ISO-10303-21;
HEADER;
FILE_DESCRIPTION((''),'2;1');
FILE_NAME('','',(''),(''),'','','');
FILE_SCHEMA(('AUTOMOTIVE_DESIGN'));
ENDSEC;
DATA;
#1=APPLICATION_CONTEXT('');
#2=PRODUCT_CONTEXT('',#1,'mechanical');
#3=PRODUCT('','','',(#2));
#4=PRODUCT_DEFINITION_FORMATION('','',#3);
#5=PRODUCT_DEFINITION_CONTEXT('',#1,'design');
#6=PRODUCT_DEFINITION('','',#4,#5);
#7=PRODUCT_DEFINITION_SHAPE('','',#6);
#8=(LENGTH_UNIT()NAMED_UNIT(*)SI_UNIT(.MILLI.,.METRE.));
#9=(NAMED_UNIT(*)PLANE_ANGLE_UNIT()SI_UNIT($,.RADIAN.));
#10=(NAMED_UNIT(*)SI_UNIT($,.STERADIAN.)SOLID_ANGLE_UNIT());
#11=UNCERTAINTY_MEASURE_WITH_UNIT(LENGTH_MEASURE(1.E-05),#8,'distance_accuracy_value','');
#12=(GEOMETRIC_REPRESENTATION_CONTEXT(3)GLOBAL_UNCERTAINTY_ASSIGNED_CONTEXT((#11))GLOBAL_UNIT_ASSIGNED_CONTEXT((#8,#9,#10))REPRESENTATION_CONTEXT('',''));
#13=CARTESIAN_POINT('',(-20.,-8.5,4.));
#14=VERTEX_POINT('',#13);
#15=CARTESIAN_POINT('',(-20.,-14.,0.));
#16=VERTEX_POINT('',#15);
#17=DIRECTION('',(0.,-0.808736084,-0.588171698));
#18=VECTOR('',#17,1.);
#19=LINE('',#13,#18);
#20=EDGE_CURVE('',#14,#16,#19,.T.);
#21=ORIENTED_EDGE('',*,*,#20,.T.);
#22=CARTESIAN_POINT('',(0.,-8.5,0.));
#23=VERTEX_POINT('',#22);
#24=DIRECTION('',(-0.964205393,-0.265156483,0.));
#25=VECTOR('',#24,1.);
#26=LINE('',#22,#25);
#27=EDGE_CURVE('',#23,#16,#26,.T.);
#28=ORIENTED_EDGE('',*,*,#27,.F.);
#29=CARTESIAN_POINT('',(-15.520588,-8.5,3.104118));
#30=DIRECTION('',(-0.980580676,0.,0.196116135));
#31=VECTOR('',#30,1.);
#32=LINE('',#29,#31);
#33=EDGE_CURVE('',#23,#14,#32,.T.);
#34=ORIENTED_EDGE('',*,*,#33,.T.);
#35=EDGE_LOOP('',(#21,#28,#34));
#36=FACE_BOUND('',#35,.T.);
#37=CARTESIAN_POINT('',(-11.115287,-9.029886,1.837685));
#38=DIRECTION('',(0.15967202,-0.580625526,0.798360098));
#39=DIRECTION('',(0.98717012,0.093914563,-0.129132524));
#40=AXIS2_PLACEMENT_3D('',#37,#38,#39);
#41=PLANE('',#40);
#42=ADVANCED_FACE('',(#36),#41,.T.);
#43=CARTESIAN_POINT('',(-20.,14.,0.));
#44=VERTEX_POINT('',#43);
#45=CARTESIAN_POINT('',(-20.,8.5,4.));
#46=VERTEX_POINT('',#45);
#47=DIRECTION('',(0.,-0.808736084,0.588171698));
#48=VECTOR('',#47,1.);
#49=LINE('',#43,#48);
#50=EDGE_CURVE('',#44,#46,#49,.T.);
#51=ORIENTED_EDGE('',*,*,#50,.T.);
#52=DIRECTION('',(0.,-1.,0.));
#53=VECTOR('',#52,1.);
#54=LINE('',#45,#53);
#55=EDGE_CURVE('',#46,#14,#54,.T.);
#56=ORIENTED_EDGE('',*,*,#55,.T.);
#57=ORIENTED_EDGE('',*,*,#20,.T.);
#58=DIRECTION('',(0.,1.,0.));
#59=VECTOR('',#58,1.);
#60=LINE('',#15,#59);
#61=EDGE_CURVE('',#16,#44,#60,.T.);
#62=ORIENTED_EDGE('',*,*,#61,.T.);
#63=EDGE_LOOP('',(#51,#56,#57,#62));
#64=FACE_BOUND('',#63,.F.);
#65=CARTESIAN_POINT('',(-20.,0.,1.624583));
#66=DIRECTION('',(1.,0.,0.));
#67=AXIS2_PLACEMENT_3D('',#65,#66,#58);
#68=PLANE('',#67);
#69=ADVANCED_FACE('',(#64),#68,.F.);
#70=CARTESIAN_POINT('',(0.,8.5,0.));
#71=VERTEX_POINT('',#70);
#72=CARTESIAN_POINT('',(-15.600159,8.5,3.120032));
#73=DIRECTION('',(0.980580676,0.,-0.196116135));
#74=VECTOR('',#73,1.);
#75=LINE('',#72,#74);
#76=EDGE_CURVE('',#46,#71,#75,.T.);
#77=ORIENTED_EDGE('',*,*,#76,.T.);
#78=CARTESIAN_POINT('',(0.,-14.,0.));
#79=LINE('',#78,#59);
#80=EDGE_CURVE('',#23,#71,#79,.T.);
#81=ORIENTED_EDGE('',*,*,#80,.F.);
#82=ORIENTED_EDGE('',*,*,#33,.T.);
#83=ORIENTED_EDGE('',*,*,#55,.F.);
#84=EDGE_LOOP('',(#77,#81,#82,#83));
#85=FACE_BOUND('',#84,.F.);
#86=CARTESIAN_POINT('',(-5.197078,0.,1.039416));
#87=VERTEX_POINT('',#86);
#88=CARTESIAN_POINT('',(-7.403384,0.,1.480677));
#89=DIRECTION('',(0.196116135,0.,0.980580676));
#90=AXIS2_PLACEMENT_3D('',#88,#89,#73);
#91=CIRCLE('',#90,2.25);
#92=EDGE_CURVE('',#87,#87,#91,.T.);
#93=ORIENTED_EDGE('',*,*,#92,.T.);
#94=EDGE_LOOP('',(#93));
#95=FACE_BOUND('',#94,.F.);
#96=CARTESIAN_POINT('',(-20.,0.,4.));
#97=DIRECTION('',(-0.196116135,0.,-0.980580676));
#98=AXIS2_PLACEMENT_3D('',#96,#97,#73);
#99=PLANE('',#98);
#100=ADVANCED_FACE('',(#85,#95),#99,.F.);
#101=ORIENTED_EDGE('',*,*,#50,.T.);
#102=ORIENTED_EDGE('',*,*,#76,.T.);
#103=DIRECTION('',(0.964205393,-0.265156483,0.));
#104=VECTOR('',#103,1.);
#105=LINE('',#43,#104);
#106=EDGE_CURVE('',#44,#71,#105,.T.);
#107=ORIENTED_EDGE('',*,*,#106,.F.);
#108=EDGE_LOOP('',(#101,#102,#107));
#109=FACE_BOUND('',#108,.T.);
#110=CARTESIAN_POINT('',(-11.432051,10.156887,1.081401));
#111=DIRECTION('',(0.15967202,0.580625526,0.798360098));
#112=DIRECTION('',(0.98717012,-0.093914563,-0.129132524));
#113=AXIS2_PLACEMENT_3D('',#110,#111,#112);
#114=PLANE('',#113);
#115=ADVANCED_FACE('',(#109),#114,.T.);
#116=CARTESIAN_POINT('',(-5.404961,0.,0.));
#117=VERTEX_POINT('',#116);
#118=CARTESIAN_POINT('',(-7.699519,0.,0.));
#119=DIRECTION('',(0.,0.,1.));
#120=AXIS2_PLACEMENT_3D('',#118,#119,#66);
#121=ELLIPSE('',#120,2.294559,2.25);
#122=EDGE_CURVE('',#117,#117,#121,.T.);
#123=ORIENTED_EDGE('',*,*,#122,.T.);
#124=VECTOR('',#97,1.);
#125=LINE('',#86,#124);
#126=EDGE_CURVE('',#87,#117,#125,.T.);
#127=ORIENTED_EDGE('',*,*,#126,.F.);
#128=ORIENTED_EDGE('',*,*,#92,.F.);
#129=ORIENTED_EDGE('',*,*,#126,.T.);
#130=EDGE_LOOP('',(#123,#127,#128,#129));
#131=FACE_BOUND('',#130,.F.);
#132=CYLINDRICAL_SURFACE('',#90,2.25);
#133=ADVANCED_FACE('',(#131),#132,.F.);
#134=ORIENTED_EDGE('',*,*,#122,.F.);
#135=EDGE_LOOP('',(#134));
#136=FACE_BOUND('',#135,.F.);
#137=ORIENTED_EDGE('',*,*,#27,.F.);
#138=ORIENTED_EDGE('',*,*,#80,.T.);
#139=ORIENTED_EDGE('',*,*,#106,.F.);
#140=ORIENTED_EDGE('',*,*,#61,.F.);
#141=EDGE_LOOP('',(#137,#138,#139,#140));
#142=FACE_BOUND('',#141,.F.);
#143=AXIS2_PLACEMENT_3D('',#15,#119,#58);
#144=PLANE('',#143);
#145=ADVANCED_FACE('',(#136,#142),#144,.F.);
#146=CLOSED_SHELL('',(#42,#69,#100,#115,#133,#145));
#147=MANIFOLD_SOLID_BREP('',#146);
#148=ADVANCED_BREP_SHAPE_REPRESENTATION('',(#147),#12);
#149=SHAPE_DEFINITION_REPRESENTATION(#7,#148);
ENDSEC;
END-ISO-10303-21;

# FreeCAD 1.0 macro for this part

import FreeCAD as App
import Part
import Sketcher
from FreeCAD import Vector

doc = App.newDocument("Part")
body = doc.addObject("PartDesign::Body", "Body")

sketch1 = body.newObject("Sketcher::SketchObject", "Sketch")
sketch1.AttachmentSupport = (doc.getObject("YZ_Plane"), [""])
sketch1.MapMode = "FlatFace"
sketch1.AttachmentOffset = App.Placement(Vector(0, 0, -20), App.Rotation())
sketch1.addGeometry(Part.LineSegment(Vector(-14, 0, 0), Vector(14, 0, 0)), False)
sketch1.addGeometry(Part.LineSegment(Vector(14, 0, 0), Vector(8.5, 4, 0)), False)
sketch1.addGeometry(Part.LineSegment(Vector(8.5, 4, 0), Vector(-8.5, 4, 0)), False)
sketch1.addGeometry(Part.LineSegment(Vector(-8.5, 4, 0), Vector(-14, 0, 0)), False)
sketch1.addConstraint(Sketcher.Constraint("Coincident", 0, 2, 1, 1))
sketch1.addConstraint(Sketcher.Constraint("Coincident", 1, 2, 2, 1))
sketch1.addConstraint(Sketcher.Constraint("Coincident", 2, 2, 3, 1))
sketch1.addConstraint(Sketcher.Constraint("Coincident", 3, 2, 0, 1))
sketch1.addConstraint(Sketcher.Constraint("Horizontal", 0))
sketch1.addConstraint(Sketcher.Constraint("Horizontal", 2))
sketch1.addConstraint(Sketcher.Constraint("Symmetric", 0, 2, 3, 2, -1, 1))
sketch1.addConstraint(Sketcher.Constraint("Equal", 1, 3))
sketch1.addConstraint(Sketcher.Constraint("DistanceX", 0, 1, 0, 2, 28.0))
sketch1.addConstraint(Sketcher.Constraint("DistanceX", 2, 2, 2, 1, 17.0))
sketch1.addConstraint(Sketcher.Constraint("DistanceY", -1, 1, 1, 2, 4.0))
pad1 = body.newObject("PartDesign::Pad", "Pad")
pad1.Profile = sketch1
pad1.Length = 20

sketch2 = body.newObject("Sketcher::SketchObject", "Sketch001")
sketch2.AttachmentSupport = (doc.getObject("XY_Plane"), [""])
sketch2.MapMode = "FlatFace"
sketch2.addGeometry(Part.LineSegment(Vector(0, -14, 0), Vector(0, -8.5, 0)), False)
sketch2.addGeometry(Part.LineSegment(Vector(0, -8.5, 0), Vector(-20, -14, 0)), False)
sketch2.addGeometry(Part.LineSegment(Vector(-20, -14, 0), Vector(0, -14, 0)), False)
sketch2.addGeometry(Part.LineSegment(Vector(-20, 14, 0), Vector(0, 8.5, 0)), False)
sketch2.addGeometry(Part.LineSegment(Vector(0, 8.5, 0), Vector(0, 14, 0)), False)
sketch2.addGeometry(Part.LineSegment(Vector(0, 14, 0), Vector(-20, 14, 0)), False)
sketch2.addConstraint(Sketcher.Constraint("Coincident", 0, 2, 1, 1))
sketch2.addConstraint(Sketcher.Constraint("Coincident", 1, 2, 2, 1))
sketch2.addConstraint(Sketcher.Constraint("Coincident", 2, 2, 0, 1))
sketch2.addConstraint(Sketcher.Constraint("Coincident", 3, 2, 4, 1))
sketch2.addConstraint(Sketcher.Constraint("Coincident", 4, 2, 5, 1))
sketch2.addConstraint(Sketcher.Constraint("Coincident", 5, 2, 3, 1))
sketch2.addConstraint(Sketcher.Constraint("Vertical", 0))
sketch2.addConstraint(Sketcher.Constraint("Horizontal", 2))
sketch2.addConstraint(Sketcher.Constraint("Vertical", 4))
sketch2.addConstraint(Sketcher.Constraint("Horizontal", 5))
sketch2.addConstraint(Sketcher.Constraint("Symmetric", 0, 2, 3, 2, -1, 1))
sketch2.addConstraint(Sketcher.Constraint("Symmetric", 2, 2, 4, 2, -1))
sketch2.addConstraint(Sketcher.Constraint("Vertical", 1, 2, 5, 2))
sketch2.addConstraint(Sketcher.Constraint("DistanceX", 2, 1, 2, 2, 20.0))
sketch2.addConstraint(Sketcher.Constraint("DistanceY", 0, 1, 0, 2, 5.5))
sketch2.addConstraint(Sketcher.Constraint("DistanceY", 1, 2, -1, 1, 14.0))
pocket1 = body.newObject("PartDesign::Pocket", "Pocket")
pocket1.Profile = sketch2
pocket1.Length = 25
pocket1.Reversed = True

sketch3 = body.newObject("Sketcher::SketchObject", "Sketch002")
sketch3.AttachmentSupport = (doc.getObject("XZ_Plane"), [""])
sketch3.MapMode = "FlatFace"
sketch3.addGeometry(Part.LineSegment(Vector(-20, 4, 0), Vector(0, 0, 0)), False)
sketch3.addGeometry(Part.LineSegment(Vector(0, 0, 0), Vector(0, 4, 0)), False)
sketch3.addGeometry(Part.LineSegment(Vector(0, 4, 0), Vector(-20, 4, 0)), False)
sketch3.addConstraint(Sketcher.Constraint("Coincident", 0, 2, 1, 1))
sketch3.addConstraint(Sketcher.Constraint("Coincident", 1, 2, 2, 1))
sketch3.addConstraint(Sketcher.Constraint("Coincident", 2, 2, 0, 1))
sketch3.addConstraint(Sketcher.Constraint("Vertical", 1))
sketch3.addConstraint(Sketcher.Constraint("Horizontal", 2))
sketch3.addConstraint(Sketcher.Constraint("Coincident", 0, 2, -1, 1))
sketch3.addConstraint(Sketcher.Constraint("DistanceX", 2, 2, 2, 1, 20.0))
sketch3.addConstraint(Sketcher.Constraint("DistanceY", 1, 1, 1, 2, 4.0))
pocket2 = body.newObject("PartDesign::Pocket", "Pocket001")
pocket2.Profile = sketch3
pocket2.Length = 25
pocket2.Midplane = True

sketch4 = body.newObject("Sketcher::SketchObject", "Sketch003")
sketch4.Placement = App.Placement(Vector(0.788032, 2.865571, 3.94016), App.Rotation(Vector(0.98717012, -0.093914563, -0.129132524), Vector(0, 0.808736085, -0.588171698), Vector(0.15967202, 0.580625526, 0.798360098), "ZXY"))
sketch4.addGeometry(Part.LineSegment(Vector(-27.47314, 14.247141, 0), Vector(-27.47314, 0.909242, 0)), False)
sketch4.addGeometry(Part.LineSegment(Vector(-27.47314, 0.909242, 0), Vector(2.715334, 0.909242, 0)), False)
sketch4.addGeometry(Part.LineSegment(Vector(2.715334, 0.909242, 0), Vector(2.715334, 14.247141, 0)), False)
sketch4.addGeometry(Part.LineSegment(Vector(2.715334, 14.247141, 0), Vector(-27.47314, 14.247141, 0)), False)
sketch4.addConstraint(Sketcher.Constraint("Coincident", 0, 2, 1, 1))
sketch4.addConstraint(Sketcher.Constraint("Coincident", 1, 2, 2, 1))
sketch4.addConstraint(Sketcher.Constraint("Coincident", 2, 2, 3, 1))
sketch4.addConstraint(Sketcher.Constraint("Coincident", 3, 2, 0, 1))
sketch4.addConstraint(Sketcher.Constraint("Vertical", 0))
sketch4.addConstraint(Sketcher.Constraint("Horizontal", 1))
sketch4.addConstraint(Sketcher.Constraint("Vertical", 2))
sketch4.addConstraint(Sketcher.Constraint("Horizontal", 3))
sketch4.addConstraint(Sketcher.Constraint("DistanceY", 0, 2, 0, 1, 13.337898))
sketch4.addConstraint(Sketcher.Constraint("DistanceX", 1, 1, 1, 2, 30.188474))
sketch4.addConstraint(Sketcher.Constraint("DistanceX", 0, 2, -1, 1, 27.47314))
sketch4.addConstraint(Sketcher.Constraint("DistanceY", -1, 1, 2, 2, 14.247141))
pocket3 = body.newObject("PartDesign::Pocket", "Pocket002")
pocket3.Profile = sketch4
pocket3.Length = 25
pocket3.Reversed = True

sketch5 = body.newObject("Sketcher::SketchObject", "Sketch004")
sketch5.Placement = App.Placement(Vector(0.788032, -2.865571, 3.94016), App.Rotation(Vector(0.98717012, 0.093914563, -0.129132524), Vector(0, 0.808736085, 0.588171698), Vector(0.15967202, -0.580625526, 0.798360098), "ZXY"))
sketch5.addGeometry(Part.LineSegment(Vector(-24.116043, 2.460038, 0), Vector(-24.116043, -14.903879, 0)), False)
sketch5.addGeometry(Part.LineSegment(Vector(-24.116043, -14.903879, 0), Vector(0, -14.903879, 0)), False)
sketch5.addGeometry(Part.LineSegment(Vector(0, -14.903879, 0), Vector(0, 2.460038, 0)), False)
sketch5.addGeometry(Part.LineSegment(Vector(0, 2.460038, 0), Vector(-24.116043, 2.460038, 0)), False)
sketch5.addConstraint(Sketcher.Constraint("Coincident", 0, 2, 1, 1))
sketch5.addConstraint(Sketcher.Constraint("Coincident", 1, 2, 2, 1))
sketch5.addConstraint(Sketcher.Constraint("Coincident", 2, 2, 3, 1))
sketch5.addConstraint(Sketcher.Constraint("Coincident", 3, 2, 0, 1))
sketch5.addConstraint(Sketcher.Constraint("Vertical", 0))
sketch5.addConstraint(Sketcher.Constraint("Horizontal", 1))
sketch5.addConstraint(Sketcher.Constraint("Vertical", 2))
sketch5.addConstraint(Sketcher.Constraint("Horizontal", 3))
sketch5.addConstraint(Sketcher.Constraint("PointOnObject", 1, 2, -2))
sketch5.addConstraint(Sketcher.Constraint("DistanceX", 1, 1, 1, 2, 24.116043))
sketch5.addConstraint(Sketcher.Constraint("DistanceY", 0, 2, 0, 1, 17.363917))
sketch5.addConstraint(Sketcher.Constraint("DistanceY", 0, 2, -1, 1, 14.903879))
pocket4 = body.newObject("PartDesign::Pocket", "Pocket003")
pocket4.Profile = sketch5
pocket4.Length = 25
pocket4.Reversed = True

sketch6 = body.newObject("Sketcher::SketchObject", "Sketch005")
sketch6.Placement = App.Placement(Vector(0, 0, 0), App.Rotation(Vector(0.980580676, 0, -0.196116135), Vector(0, 1.000000001, 0), Vector(0.196116135, 0, 0.980580676), "ZXY"))
sketch6.addGeometry(Part.Circle(Vector(-7.55, 0, 0), Vector(0, 0, 1), 2.25), False)
sketch6.addConstraint(Sketcher.Constraint("PointOnObject", 0, 3, -1))
sketch6.addConstraint(Sketcher.Constraint("Diameter", 0, 4.5))
sketch6.addConstraint(Sketcher.Constraint("DistanceX", 0, 3, -1, 1, 7.55))
pocket5 = body.newObject("PartDesign::Pocket", "Pocket004")
pocket5.Profile = sketch6
pocket5.Length = 25

doc.recompute()
